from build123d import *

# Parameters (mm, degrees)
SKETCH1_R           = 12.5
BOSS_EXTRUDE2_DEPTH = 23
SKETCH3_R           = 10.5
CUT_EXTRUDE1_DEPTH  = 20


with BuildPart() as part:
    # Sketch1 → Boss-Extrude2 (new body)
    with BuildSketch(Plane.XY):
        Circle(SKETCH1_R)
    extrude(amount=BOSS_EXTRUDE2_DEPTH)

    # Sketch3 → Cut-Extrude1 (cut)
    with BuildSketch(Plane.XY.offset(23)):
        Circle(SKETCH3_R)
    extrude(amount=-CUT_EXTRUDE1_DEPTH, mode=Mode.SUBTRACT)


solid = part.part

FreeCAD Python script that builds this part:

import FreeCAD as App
import Part
import Sketcher

V = App.Vector
Q = App.Units.Quantity

doc = App.newDocument("Part")
params = doc.addObject("Spreadsheet::Sheet", "Params")
for row, (alias, value) in enumerate([
    ("sketch1_diameter", "25 mm"),
    ("pad1_length", "23 mm"),
    ("sketch2_diameter", "21 mm"),
    ("pocket1_length", "20 mm"),
], start=1):
    params.set(f"A{row}", alias)
    params.set(f"B{row}", "=" + value)
    params.setAlias(f"B{row}", alias)

body = doc.addObject("PartDesign::Body", "Body")

# Sketch on XY plane
sketch1 = body.newObject("Sketcher::SketchObject", "Sketch")
sketch1.AttachmentSupport = (doc.getObject("XY_Plane"), [""])
sketch1.MapMode = "FlatFace"
sketch1.addGeometry(Part.Circle(V(0, 0, 0), V(0, 0, 1), 12), False)
sketch1.addConstraint([
    Sketcher.Constraint("Coincident", 0, 3, -1, 1),
    Sketcher.Constraint("Diameter", 0, Q("25 mm")),
])
sketch1.setExpression("Constraints[1]", "Params.sketch1_diameter")
pad1 = body.newObject("PartDesign::Pad", "Pad")
pad1.Profile = sketch1
pad1.setExpression("Length", "Params.pad1_length")

# Sketch on XY plane
sketch2 = body.newObject("Sketcher::SketchObject", "Sketch001")
sketch2.AttachmentSupport = (doc.getObject("XY_Plane"), [""])
sketch2.MapMode = "FlatFace"
sketch2.AttachmentOffset = App.Placement(V(0, 0, 23), App.Rotation())
sketch2.addGeometry(Part.Circle(V(0, 0, 0), V(0, 0, 1), 10), False)
sketch2.addConstraint([
    Sketcher.Constraint("Coincident", 0, 3, -1, 1),
    Sketcher.Constraint("Diameter", 0, Q("21 mm")),
])
sketch2.setExpression("Constraints[1]", "Params.sketch2_diameter")
pocket1 = body.newObject("PartDesign::Pocket", "Pocket")
pocket1.Profile = sketch2
pocket1.setExpression("Length", "Params.pocket1_length")

doc.recompute()
